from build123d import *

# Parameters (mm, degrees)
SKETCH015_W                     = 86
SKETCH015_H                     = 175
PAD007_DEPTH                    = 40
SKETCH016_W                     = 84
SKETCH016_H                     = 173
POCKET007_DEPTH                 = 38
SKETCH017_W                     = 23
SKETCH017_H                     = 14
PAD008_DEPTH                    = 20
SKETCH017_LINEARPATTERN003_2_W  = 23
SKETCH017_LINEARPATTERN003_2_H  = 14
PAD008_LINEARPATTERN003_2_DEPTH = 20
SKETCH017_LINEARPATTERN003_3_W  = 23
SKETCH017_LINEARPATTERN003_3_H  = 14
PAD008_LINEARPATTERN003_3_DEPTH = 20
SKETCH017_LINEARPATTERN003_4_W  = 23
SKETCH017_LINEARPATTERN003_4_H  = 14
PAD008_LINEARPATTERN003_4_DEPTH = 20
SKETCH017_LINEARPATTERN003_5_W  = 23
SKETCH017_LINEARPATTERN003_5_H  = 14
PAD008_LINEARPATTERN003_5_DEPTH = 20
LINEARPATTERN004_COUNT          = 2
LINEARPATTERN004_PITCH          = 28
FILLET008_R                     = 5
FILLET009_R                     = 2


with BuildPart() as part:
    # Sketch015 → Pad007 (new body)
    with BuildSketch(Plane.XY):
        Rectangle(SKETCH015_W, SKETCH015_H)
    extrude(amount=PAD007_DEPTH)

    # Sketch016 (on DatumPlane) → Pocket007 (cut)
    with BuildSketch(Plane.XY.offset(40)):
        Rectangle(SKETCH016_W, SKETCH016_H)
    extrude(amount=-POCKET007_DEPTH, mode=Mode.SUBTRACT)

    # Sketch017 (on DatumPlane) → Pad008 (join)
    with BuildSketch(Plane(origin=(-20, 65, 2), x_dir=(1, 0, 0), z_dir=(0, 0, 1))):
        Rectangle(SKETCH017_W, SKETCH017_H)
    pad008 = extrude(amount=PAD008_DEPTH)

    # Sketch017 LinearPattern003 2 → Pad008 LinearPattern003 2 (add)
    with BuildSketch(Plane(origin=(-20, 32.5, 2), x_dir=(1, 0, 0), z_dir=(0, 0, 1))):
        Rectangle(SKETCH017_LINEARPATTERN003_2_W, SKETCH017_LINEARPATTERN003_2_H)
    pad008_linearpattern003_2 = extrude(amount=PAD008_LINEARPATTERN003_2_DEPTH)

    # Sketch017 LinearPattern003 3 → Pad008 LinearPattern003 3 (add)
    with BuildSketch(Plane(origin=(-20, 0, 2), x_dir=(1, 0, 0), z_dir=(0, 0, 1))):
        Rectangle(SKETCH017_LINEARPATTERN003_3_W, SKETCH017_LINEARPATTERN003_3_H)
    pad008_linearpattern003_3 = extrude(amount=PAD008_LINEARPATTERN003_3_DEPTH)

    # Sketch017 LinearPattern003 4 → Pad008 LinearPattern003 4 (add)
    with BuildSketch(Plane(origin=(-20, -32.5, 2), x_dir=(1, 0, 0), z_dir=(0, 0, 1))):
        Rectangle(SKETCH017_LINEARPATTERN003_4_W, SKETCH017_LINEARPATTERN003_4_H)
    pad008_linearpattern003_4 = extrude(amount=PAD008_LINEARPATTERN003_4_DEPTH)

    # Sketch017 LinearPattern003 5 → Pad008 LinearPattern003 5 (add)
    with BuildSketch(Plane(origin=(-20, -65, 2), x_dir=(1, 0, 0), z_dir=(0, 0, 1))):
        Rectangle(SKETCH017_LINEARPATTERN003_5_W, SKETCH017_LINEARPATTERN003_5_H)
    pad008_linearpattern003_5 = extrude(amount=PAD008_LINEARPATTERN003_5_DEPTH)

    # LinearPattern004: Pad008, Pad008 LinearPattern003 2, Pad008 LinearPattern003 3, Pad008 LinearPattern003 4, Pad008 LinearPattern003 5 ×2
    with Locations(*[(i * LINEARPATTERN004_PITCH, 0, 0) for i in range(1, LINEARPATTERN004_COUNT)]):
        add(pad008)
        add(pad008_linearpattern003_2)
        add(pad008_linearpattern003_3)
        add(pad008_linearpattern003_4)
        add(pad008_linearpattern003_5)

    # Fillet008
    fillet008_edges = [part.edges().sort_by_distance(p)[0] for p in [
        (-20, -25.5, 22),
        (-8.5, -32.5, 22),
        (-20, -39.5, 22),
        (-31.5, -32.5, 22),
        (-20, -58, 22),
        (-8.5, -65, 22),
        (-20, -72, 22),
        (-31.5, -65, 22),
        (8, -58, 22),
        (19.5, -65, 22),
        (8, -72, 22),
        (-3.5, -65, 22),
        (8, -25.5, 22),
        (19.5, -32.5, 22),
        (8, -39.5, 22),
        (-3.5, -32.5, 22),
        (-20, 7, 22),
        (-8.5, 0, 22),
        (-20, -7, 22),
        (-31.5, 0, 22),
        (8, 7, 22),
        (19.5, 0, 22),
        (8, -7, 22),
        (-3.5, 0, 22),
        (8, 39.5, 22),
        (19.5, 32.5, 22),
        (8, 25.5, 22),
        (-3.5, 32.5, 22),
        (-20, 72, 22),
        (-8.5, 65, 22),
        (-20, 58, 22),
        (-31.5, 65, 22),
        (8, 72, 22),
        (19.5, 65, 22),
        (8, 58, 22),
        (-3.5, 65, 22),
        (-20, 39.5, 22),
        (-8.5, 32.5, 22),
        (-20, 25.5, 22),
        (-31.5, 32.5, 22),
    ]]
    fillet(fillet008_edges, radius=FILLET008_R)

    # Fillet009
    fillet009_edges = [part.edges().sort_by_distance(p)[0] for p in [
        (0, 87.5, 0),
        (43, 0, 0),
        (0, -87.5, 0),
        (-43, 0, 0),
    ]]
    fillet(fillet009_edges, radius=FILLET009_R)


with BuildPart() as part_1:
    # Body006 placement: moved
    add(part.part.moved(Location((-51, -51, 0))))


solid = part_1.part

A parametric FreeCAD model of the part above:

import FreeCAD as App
import Part
import Sketcher
Q = App.Units.Quantity


def edges_at(feature, points):
    """Names of the edges that pass closest to the given points."""
    edges = feature.Shape.Edges
    near = lambda p: min(range(len(edges)), key=lambda i: edges[i].distToShape(Part.Vertex(*p))[0])
    return sorted({f"Edge{near(p) + 1}" for p in points})


def add_polygon(sketch, points):
    """Adds a closed chain of lines whose ends are joined by coincident constraints."""
    first, n = sketch.GeometryCount, len(points)
    for a, b in zip(points, points[1:] + points[:1]):
        sketch.addGeometry(Part.LineSegment(App.Vector(*a, 0), App.Vector(*b, 0)), False)
    for i in range(n):
        sketch.addConstraint(Sketcher.Constraint("Coincident", first + i, 2, first + (i + 1) % n, 1))

doc = App.newDocument("Part")
body = doc.addObject("PartDesign::Body", "Body")

sketch1 = doc.addObject("Sketcher::SketchObject", "Sketch")
body.addObject(sketch1)
sketch1.AttachmentSupport = (doc.XY_Plane, [""])
sketch1.MapMode = "FlatFace"
add_polygon(sketch1, [(-43, 88), (-43, -88), (43, -88), (43, 88)])
sketch1.addConstraint(Sketcher.Constraint("Vertical", 0))
sketch1.addConstraint(Sketcher.Constraint("Horizontal", 1))
sketch1.addConstraint(Sketcher.Constraint("Vertical", 2))
sketch1.addConstraint(Sketcher.Constraint("Horizontal", 3))
sketch1.addConstraint(Sketcher.Constraint("Symmetric", 0, 2, 2, 2, -1, 1))
sketch1.addConstraint(Sketcher.Constraint("DistanceX", 1, 1, 1, 2, Q("86 mm")))
sketch1.addConstraint(Sketcher.Constraint("DistanceY", 0, 2, 0, 1, Q("175 mm")))
pad1 = doc.addObject("PartDesign::Pad", "Pad")
body.addObject(pad1)
pad1.Profile = sketch1
pad1.Length = 40

sketch2 = doc.addObject("Sketcher::SketchObject", "Sketch001")
body.addObject(sketch2)
sketch2.AttachmentSupport = (doc.XY_Plane, [""])
sketch2.MapMode = "FlatFace"
sketch2.AttachmentOffset = App.Placement(App.Vector(0, 0, 40), App.Rotation())
add_polygon(sketch2, [(-42, 86), (-42, -86), (42, -86), (42, 86)])
sketch2.addConstraint(Sketcher.Constraint("Vertical", 0))
sketch2.addConstraint(Sketcher.Constraint("Horizontal", 1))
sketch2.addConstraint(Sketcher.Constraint("Vertical", 2))
sketch2.addConstraint(Sketcher.Constraint("Horizontal", 3))
sketch2.addConstraint(Sketcher.Constraint("Symmetric", 0, 2, 2, 2, -1, 1))
sketch2.addConstraint(Sketcher.Constraint("DistanceX", 1, 1, 1, 2, Q("84 mm")))
sketch2.addConstraint(Sketcher.Constraint("DistanceY", 0, 2, 0, 1, Q("173 mm")))
pocket1 = doc.addObject("PartDesign::Pocket", "Pocket")
body.addObject(pocket1)
pocket1.Profile = sketch2
pocket1.Length = 38

sketch3 = doc.addObject("Sketcher::SketchObject", "Sketch002")
body.addObject(sketch3)
sketch3.AttachmentSupport = (doc.XY_Plane, [""])
sketch3.MapMode = "FlatFace"
sketch3.AttachmentOffset = App.Placement(App.Vector(0, 0, 2), App.Rotation())
add_polygon(sketch3, [(-32, 72), (-32, 58), (-8, 58), (-8, 72)])
sketch3.addConstraint(Sketcher.Constraint("Vertical", 0))
sketch3.addConstraint(Sketcher.Constraint("Horizontal", 1))
sketch3.addConstraint(Sketcher.Constraint("Vertical", 2))
sketch3.addConstraint(Sketcher.Constraint("Horizontal", 3))
sketch3.addConstraint(Sketcher.Constraint("DistanceX", 1, 1, 1, 2, Q("23 mm")))
sketch3.addConstraint(Sketcher.Constraint("DistanceY", 0, 2, 0, 1, Q("14 mm")))
sketch3.addConstraint(Sketcher.Constraint("DistanceY", -1, 1, 0, 2, Q("58 mm")))
sketch3.addConstraint(Sketcher.Constraint("DistanceX", 0, 2, -1, 1, Q("31.5 mm")))
pad2 = doc.addObject("PartDesign::Pad", "Pad001")
body.addObject(pad2)
pad2.Profile = sketch3
pad2.Length = 20

sketch4 = doc.addObject("Sketcher::SketchObject", "Sketch003")
body.addObject(sketch4)
sketch4.AttachmentSupport = (doc.XY_Plane, [""])
sketch4.MapMode = "FlatFace"
sketch4.AttachmentOffset = App.Placement(App.Vector(0, 0, 2), App.Rotation())
add_polygon(sketch4, [(-32, 40), (-32, 26), (-8, 26), (-8, 40)])
sketch4.addConstraint(Sketcher.Constraint("Vertical", 0))
sketch4.addConstraint(Sketcher.Constraint("Horizontal", 1))
sketch4.addConstraint(Sketcher.Constraint("Vertical", 2))
sketch4.addConstraint(Sketcher.Constraint("Horizontal", 3))
sketch4.addConstraint(Sketcher.Constraint("DistanceX", 1, 1, 1, 2, Q("23 mm")))
sketch4.addConstraint(Sketcher.Constraint("DistanceY", 0, 2, 0, 1, Q("14 mm")))
sketch4.addConstraint(Sketcher.Constraint("DistanceX", 0, 2, -1, 1, Q("31.5 mm")))
sketch4.addConstraint(Sketcher.Constraint("DistanceY", -1, 1, 0, 2, Q("25.5 mm")))
pad3 = doc.addObject("PartDesign::Pad", "Pad002")
body.addObject(pad3)
pad3.Profile = sketch4
pad3.Length = 20

sketch5 = doc.addObject("Sketcher::SketchObject", "Sketch004")
body.addObject(sketch5)
sketch5.AttachmentSupport = (doc.XY_Plane, [""])
sketch5.MapMode = "FlatFace"
sketch5.AttachmentOffset = App.Placement(App.Vector(0, 0, 2), App.Rotation())
add_polygon(sketch5, [(-32, 7), (-32, -7), (-8, -7), (-8, 7)])
sketch5.addConstraint(Sketcher.Constraint("Vertical", 0))
sketch5.addConstraint(Sketcher.Constraint("Horizontal", 1))
sketch5.addConstraint(Sketcher.Constraint("Vertical", 2))
sketch5.addConstraint(Sketcher.Constraint("Horizontal", 3))
sketch5.addConstraint(Sketcher.Constraint("DistanceX", 1, 1, 1, 2, Q("23 mm")))
sketch5.addConstraint(Sketcher.Constraint("DistanceY", 0, 2, 0, 1, Q("14 mm")))
sketch5.addConstraint(Sketcher.Constraint("DistanceY", 0, 2, -1, 1, Q("7 mm")))
sketch5.addConstraint(Sketcher.Constraint("DistanceX", 0, 2, -1, 1, Q("31.5 mm")))
pad4 = doc.addObject("PartDesign::Pad", "Pad003")
body.addObject(pad4)
pad4.Profile = sketch5
pad4.Length = 20

sketch6 = doc.addObject("Sketcher::SketchObject", "Sketch005")
body.addObject(sketch6)
sketch6.AttachmentSupport = (doc.XY_Plane, [""])
sketch6.MapMode = "FlatFace"
sketch6.AttachmentOffset = App.Placement(App.Vector(0, 0, 2), App.Rotation())
add_polygon(sketch6, [(-32, -26), (-32, -40), (-8, -40), (-8, -26)])
sketch6.addConstraint(Sketcher.Constraint("Vertical", 0))
sketch6.addConstraint(Sketcher.Constraint("Horizontal", 1))
sketch6.addConstraint(Sketcher.Constraint("Vertical", 2))
sketch6.addConstraint(Sketcher.Constraint("Horizontal", 3))
sketch6.addConstraint(Sketcher.Constraint("DistanceX", 1, 1, 1, 2, Q("23 mm")))
sketch6.addConstraint(Sketcher.Constraint("DistanceY", 0, 2, 0, 1, Q("14 mm")))
sketch6.addConstraint(Sketcher.Constraint("DistanceX", 0, 2, -1, 1, Q("31.5 mm")))
sketch6.addConstraint(Sketcher.Constraint("DistanceY", 0, 2, -1, 1, Q("39.5 mm")))
pad5 = doc.addObject("PartDesign::Pad", "Pad004")
body.addObject(pad5)
pad5.Profile = sketch6
pad5.Length = 20

sketch7 = doc.addObject("Sketcher::SketchObject", "Sketch006")
body.addObject(sketch7)
sketch7.AttachmentSupport = (doc.XY_Plane, [""])
sketch7.MapMode = "FlatFace"
sketch7.AttachmentOffset = App.Placement(App.Vector(0, 0, 2), App.Rotation())
add_polygon(sketch7, [(-32, -58), (-32, -72), (-8, -72), (-8, -58)])
sketch7.addConstraint(Sketcher.Constraint("Vertical", 0))
sketch7.addConstraint(Sketcher.Constraint("Horizontal", 1))
sketch7.addConstraint(Sketcher.Constraint("Vertical", 2))
sketch7.addConstraint(Sketcher.Constraint("Horizontal", 3))
sketch7.addConstraint(Sketcher.Constraint("DistanceX", 1, 1, 1, 2, Q("23 mm")))
sketch7.addConstraint(Sketcher.Constraint("DistanceY", 0, 2, 0, 1, Q("14 mm")))
sketch7.addConstraint(Sketcher.Constraint("DistanceY", 0, 2, -1, 1, Q("72 mm")))
sketch7.addConstraint(Sketcher.Constraint("DistanceX", 0, 2, -1, 1, Q("31.5 mm")))
pad6 = doc.addObject("PartDesign::Pad", "Pad005")
body.addObject(pad6)
pad6.Profile = sketch7
pad6.Length = 20
doc.recompute()

linearpattern = doc.addObject("PartDesign::LinearPattern", "LinearPattern")
body.addObject(linearpattern)
linearpattern.Originals = [pad2, pad3, pad4, pad5, pad6]
linearpattern.Direction = (doc.X_Axis, [""])
linearpattern.Mode = "offset"
linearpattern.Offset = 28
linearpattern.Occurrences = 2
body.Tip = linearpattern
doc.recompute()

fillet = doc.addObject("PartDesign::Fillet", "Fillet")
body.addObject(fillet)
fillet.Base = (linearpattern, edges_at(linearpattern, [
    (-20, -25.5, 22),
    (-8.5, -32.5, 22),
    (-20, -39.5, 22),
    (-31.5, -32.5, 22),
    (-20, -58, 22),
    (-8.5, -65, 22),
    (-20, -72, 22),
    (-31.5, -65, 22),
    (8, -58, 22),
    (19.5, -65, 22),
    (8, -72, 22),
    (-3.5, -65, 22),
    (8, -25.5, 22),
    (19.5, -32.5, 22),
    (8, -39.5, 22),
    (-3.5, -32.5, 22),
    (-20, 7, 22),
    (-8.5, 0, 22),
    (-20, -7, 22),
    (-31.5, 0, 22),
    (8, 7, 22),
    (19.5, 0, 22),
    (8, -7, 22),
    (-3.5, 0, 22),
    (8, 39.5, 22),
    (19.5, 32.5, 22),
    (8, 25.5, 22),
    (-3.5, 32.5, 22),
    (-20, 72, 22),
    (-8.5, 65, 22),
    (-20, 58, 22),
    (-31.5, 65, 22),
    (8, 72, 22),
    (19.5, 65, 22),
    (8, 58, 22),
    (-3.5, 65, 22),
    (-20, 39.5, 22),
    (-8.5, 32.5, 22),
    (-20, 25.5, 22),
    (-31.5, 32.5, 22),
]))
fillet.Radius = 5
doc.recompute()

fillet2 = doc.addObject("PartDesign::Fillet", "Fillet001")
body.addObject(fillet2)
fillet2.Base = (fillet, edges_at(fillet, [
    (0, 87.5, 0),
    (43, 0, 0),
    (0, -87.5, 0),
    (-43, 0, 0),
]))
fillet2.Radius = 2
body2 = doc.addObject("PartDesign::Body", "Body001")
doc.recompute()

body.Placement = App.Placement(App.Vector(-51, -51, 0), App.Rotation(App.Vector(0, 0, 1), 0))
boolean = doc.addObject("PartDesign::Boolean", "Boolean")
body2.addObject(boolean)
boolean.Type = "Fuse"
boolean.addObjects([body])

doc.recompute()
